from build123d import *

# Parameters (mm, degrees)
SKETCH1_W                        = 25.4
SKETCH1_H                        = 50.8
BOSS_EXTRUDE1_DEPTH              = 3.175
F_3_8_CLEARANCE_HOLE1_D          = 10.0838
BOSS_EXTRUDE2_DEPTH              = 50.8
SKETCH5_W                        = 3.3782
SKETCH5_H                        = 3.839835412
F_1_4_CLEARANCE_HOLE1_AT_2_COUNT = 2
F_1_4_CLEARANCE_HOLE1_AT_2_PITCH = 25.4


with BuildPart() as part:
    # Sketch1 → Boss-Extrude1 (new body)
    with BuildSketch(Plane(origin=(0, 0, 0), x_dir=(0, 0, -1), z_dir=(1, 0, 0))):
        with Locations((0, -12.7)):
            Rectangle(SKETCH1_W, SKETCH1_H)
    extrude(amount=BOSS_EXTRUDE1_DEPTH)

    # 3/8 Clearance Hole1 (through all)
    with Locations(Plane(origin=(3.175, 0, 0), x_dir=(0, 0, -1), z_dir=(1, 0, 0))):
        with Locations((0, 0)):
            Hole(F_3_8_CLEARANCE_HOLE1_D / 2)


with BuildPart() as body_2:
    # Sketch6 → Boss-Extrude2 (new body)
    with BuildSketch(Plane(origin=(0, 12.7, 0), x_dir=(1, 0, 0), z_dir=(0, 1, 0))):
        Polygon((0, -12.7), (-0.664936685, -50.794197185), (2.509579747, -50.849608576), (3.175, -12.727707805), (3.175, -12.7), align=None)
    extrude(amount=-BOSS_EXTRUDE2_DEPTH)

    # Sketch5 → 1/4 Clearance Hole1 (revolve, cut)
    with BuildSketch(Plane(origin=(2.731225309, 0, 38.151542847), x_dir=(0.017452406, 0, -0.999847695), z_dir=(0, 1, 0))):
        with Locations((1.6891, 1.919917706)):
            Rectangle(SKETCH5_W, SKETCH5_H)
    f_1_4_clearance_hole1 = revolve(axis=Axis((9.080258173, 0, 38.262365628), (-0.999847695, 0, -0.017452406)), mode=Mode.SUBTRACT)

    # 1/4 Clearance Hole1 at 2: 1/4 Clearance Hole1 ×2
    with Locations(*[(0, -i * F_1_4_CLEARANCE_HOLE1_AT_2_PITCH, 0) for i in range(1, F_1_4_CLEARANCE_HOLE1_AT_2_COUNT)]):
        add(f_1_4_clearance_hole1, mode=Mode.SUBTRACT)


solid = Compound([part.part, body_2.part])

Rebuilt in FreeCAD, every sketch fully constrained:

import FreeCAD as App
import Part
import Sketcher
from FreeCAD import Vector
Q = App.Units.Quantity

doc = App.newDocument("Part")
body = doc.addObject("PartDesign::Body", "Body")

# Sketch on YZ plane
sketch1 = body.newObject("Sketcher::SketchObject", "Sketch")
sketch1.AttachmentSupport = (doc.getObject("YZ_Plane"), [""])
sketch1.MapMode = "FlatFace"
sketch1.addGeometry([
    Part.LineSegment(Vector(12.7, 12.7, 0), Vector(-38.1, 12.7, 0)),
    Part.LineSegment(Vector(-38.1, 12.7, 0), Vector(-38.1, -12.7, 0)),
    Part.LineSegment(Vector(-38.1, -12.7, 0), Vector(12.7, -12.7, 0)),
    Part.LineSegment(Vector(12.7, -12.7, 0), Vector(12.7, 12.7, 0)),
], False)
sketch1.addConstraint([
    Sketcher.Constraint("Coincident", 0, 2, 1, 1),
    Sketcher.Constraint("Coincident", 1, 2, 2, 1),
    Sketcher.Constraint("Coincident", 2, 2, 3, 1),
    Sketcher.Constraint("Coincident", 3, 2, 0, 1),
    Sketcher.Constraint("Horizontal", 0),
    Sketcher.Constraint("Vertical", 1),
    Sketcher.Constraint("Horizontal", 2),
    Sketcher.Constraint("Vertical", 3),
    Sketcher.Constraint("DistanceX", 0, 2, 0, 1, Q("2 in")),
    Sketcher.Constraint("DistanceY", 1, 2, 1, 1, Q("1 in")),
    Sketcher.Constraint("DistanceX", 0, 2, -1, 1, Q("1.5 in")),
    Sketcher.Constraint("DistanceY", -1, 1, 0, 2, Q("0.5 in")),
])
pad1 = body.newObject("PartDesign::Pad", "Pad")
pad1.Profile = sketch1
pad1.Length = Q("0.125 in")

# Sketch on YZ plane
sketch2 = body.newObject("Sketcher::SketchObject", "Sketch001")
sketch2.AttachmentSupport = (doc.getObject("YZ_Plane"), [""])
sketch2.MapMode = "FlatFace"
sketch2.AttachmentOffset = App.Placement(Vector(0, 0, 0.125 * 25.4), App.Rotation())
sketch2.addGeometry(Part.Circle(Vector(0, 0, 0), Vector(0, 0, 1), 5.0419), False)
sketch2.addConstraint([
    Sketcher.Constraint("Coincident", 0, 3, -1, 1),
    Sketcher.Constraint("Diameter", 0, Q("0.397 in")),
])
doc.recompute()
hole = body.newObject("PartDesign::Hole", "Hole")
hole.Profile = sketch2
hole.ThreadType = "None"
hole.Diameter = Q("0.397 in")
hole.DepthType = "ThroughAll"
body2 = doc.addObject("PartDesign::Body", "Body001")

# Sketch on XZ plane
sketch3 = body2.newObject("Sketcher::SketchObject", "Sketch002")
sketch3.AttachmentSupport = (doc.getObject("XZ_Plane001"), [""])
sketch3.MapMode = "FlatFace"
sketch3.AttachmentOffset = App.Placement(Vector(0, 0, -0.5 * 25.4), App.Rotation())
sketch3.addGeometry([
    Part.LineSegment(Vector(0, 12.7, 0), Vector(-0.664937, 50.794197, 0)),  # 0
    Part.LineSegment(Vector(-0.664937, 50.794197, 0), Vector(2.50958, 50.849609, 0)),  # 1
    Part.LineSegment(Vector(2.50958, 50.849609, 0), Vector(3.175, 12.727708, 0)),  # 2
    Part.LineSegment(Vector(3.175, 12.727708, 0), Vector(3.175, 12.7, 0)),  # 3
    Part.LineSegment(Vector(3.175, 12.7, 0), Vector(0, 12.7, 0)),  # 4
], False)
sketch3.addConstraint([
    Sketcher.Constraint("Coincident", 0, 2, 1, 1),
    Sketcher.Constraint("Coincident", 1, 2, 2, 1),
    Sketcher.Constraint("Coincident", 2, 2, 3, 1),
    Sketcher.Constraint("Coincident", 3, 2, 4, 1),
    Sketcher.Constraint("Coincident", 4, 2, 0, 1),
    Sketcher.Constraint("Vertical", 3),
    Sketcher.Constraint("Horizontal", 4),
    Sketcher.Constraint("PointOnObject", 4, 2, -2),
    Sketcher.Constraint("Perpendicular", 0, 1),
    Sketcher.Constraint("Perpendicular", 1, 2),
    Sketcher.Constraint("Angle", 0, Q("91 deg")),
    Sketcher.Constraint("Distance", 0, Q("1.5 in")),
    Sketcher.Constraint("DistanceY", -1, 1, 3, 2, Q("0.5 in")),
    Sketcher.Constraint("DistanceX", 4, 2, 4, 1, Q("0.125 in")),
    Sketcher.Constraint("Distance", 1, Q("0.125 in")),
])
pad2 = body2.newObject("PartDesign::Pad", "Pad001")
pad2.Profile = sketch3
pad2.Length = Q("2 in")

# Sketch on XZ plane
sketch4 = body2.newObject("Sketcher::SketchObject", "Sketch003")
sketch4.AttachmentSupport = (doc.getObject("XZ_Plane001"), [""])
sketch4.MapMode = "FlatFace"
sketch4.addGeometry([
    Part.LineSegment(Vector(-1.108025, 38.084528, 0), Vector(2.731225, 38.151543, 0)),
    Part.LineSegment(Vector(2.731225, 38.151543, 0), Vector(2.790183, 34.773857, 0)),
    Part.LineSegment(Vector(2.790183, 34.773857, 0), Vector(-1.049068, 34.706843, 0)),
    Part.LineSegment(Vector(-1.049068, 34.706843, 0), Vector(-1.108025, 38.084528, 0)),
], False)
sketch4.addGeometry(Part.LineSegment(Vector(2.731225, 38.151543, 0), Vector(-1.108025, 38.084528, 0)), True)  # axis
sketch4.addConstraint([
    Sketcher.Constraint("Coincident", 0, 2, 1, 1),
    Sketcher.Constraint("Coincident", 1, 2, 2, 1),
    Sketcher.Constraint("Coincident", 2, 2, 3, 1),
    Sketcher.Constraint("Coincident", 3, 2, 0, 1),
    Sketcher.Constraint("Coincident", 4, 1, 0, 2),
    Sketcher.Constraint("Coincident", 4, 2, 3, 2),
    Sketcher.Constraint("Perpendicular", 0, 1),
    Sketcher.Constraint("Perpendicular", 1, 2),
    Sketcher.Constraint("Perpendicular", 2, 3),
    Sketcher.Constraint("Angle", 0, Q("1 deg")),
    Sketcher.Constraint("Distance", 1, Q("0.133 in")),
    Sketcher.Constraint("DistanceY", 2, 2, 0, 2, Q("3.4447 mm")),
    Sketcher.Constraint("DistanceY", -1, 1, 3, 2, Q("38.084528 mm")),
    Sketcher.Constraint("DistanceX", -1, 1, 0, 2, Q("2.731225 mm")),
])
groove = body2.newObject("PartDesign::Groove", "Groove")
groove.Profile = sketch4
groove.ReferenceAxis = (sketch4, ["Axis0"])
groove.Angle = 360
doc.recompute()

linearpattern = body2.newObject("PartDesign::LinearPattern", "LinearPattern")
linearpattern.Originals = [groove]
linearpattern.Direction = (doc.getObject("Y_Axis001"), [""])
linearpattern.Mode = "offset"
linearpattern.Offset = Q("1 in")
linearpattern.Occurrences = 2
linearpattern.Reversed = True
body2.Tip = linearpattern

doc.recompute()
